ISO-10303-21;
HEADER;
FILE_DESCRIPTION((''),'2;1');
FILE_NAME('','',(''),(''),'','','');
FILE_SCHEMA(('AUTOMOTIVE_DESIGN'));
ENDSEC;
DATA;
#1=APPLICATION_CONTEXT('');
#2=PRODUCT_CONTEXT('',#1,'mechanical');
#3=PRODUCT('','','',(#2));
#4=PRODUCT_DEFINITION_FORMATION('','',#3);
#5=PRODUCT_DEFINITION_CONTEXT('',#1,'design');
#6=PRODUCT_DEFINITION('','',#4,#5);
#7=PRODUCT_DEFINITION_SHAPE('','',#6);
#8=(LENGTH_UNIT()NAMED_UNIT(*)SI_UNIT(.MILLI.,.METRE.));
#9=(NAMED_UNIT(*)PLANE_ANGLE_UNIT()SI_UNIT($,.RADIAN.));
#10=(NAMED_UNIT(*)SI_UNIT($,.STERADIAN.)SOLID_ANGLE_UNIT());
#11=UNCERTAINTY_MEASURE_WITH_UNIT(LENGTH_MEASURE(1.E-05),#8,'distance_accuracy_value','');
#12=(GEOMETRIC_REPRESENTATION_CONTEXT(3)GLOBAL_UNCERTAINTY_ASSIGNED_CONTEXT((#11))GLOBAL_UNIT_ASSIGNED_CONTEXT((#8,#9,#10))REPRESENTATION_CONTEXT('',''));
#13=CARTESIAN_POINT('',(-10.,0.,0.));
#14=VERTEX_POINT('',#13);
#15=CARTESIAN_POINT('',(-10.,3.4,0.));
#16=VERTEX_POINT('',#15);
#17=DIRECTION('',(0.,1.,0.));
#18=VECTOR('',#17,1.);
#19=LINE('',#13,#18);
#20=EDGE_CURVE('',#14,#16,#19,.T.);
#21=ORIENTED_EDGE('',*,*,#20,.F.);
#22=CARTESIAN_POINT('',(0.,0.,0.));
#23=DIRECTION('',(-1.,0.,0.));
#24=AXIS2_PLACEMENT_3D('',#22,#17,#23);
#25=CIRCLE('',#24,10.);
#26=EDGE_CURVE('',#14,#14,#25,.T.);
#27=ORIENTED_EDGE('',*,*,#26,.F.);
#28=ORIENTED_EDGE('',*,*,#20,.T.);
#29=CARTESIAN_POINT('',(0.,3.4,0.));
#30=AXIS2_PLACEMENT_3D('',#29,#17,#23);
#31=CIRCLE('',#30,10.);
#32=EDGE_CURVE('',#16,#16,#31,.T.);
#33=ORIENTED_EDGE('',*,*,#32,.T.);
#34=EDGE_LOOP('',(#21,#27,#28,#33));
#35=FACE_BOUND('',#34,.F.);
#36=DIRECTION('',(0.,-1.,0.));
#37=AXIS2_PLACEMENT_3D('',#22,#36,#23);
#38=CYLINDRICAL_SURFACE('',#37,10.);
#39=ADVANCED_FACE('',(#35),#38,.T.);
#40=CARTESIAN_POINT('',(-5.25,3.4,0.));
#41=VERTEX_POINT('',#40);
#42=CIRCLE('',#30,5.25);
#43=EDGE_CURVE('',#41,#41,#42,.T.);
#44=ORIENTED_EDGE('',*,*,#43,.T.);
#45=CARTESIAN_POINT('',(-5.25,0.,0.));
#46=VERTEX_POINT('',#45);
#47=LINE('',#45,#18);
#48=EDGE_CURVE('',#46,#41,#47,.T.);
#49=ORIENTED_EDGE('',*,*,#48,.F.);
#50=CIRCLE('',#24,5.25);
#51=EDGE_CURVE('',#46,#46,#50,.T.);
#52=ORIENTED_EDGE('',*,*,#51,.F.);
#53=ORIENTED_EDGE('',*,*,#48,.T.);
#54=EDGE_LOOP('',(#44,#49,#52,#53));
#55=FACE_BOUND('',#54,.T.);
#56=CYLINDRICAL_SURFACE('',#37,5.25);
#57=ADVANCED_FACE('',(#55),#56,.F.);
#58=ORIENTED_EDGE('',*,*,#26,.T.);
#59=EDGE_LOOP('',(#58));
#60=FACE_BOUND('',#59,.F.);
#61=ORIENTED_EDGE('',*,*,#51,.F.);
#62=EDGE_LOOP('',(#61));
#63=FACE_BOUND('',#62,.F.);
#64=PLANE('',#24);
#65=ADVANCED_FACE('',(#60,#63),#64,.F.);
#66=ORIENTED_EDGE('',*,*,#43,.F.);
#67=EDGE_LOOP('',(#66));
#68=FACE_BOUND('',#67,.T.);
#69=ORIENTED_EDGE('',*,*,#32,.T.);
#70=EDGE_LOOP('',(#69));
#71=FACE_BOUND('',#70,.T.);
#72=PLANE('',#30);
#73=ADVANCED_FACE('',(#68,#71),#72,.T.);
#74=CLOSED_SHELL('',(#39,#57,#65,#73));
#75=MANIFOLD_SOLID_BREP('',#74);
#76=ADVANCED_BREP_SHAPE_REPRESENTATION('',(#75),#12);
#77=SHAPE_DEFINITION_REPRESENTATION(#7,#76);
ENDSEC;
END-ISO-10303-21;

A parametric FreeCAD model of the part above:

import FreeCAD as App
import Part
import Sketcher

V = App.Vector
Q = App.Units.Quantity

doc = App.newDocument("Part")
body = doc.addObject("PartDesign::Body", "Body")

# Sketch on XZ plane
sketch1 = body.newObject("Sketcher::SketchObject", "Sketch")
sketch1.AttachmentSupport = (doc.getObject("XZ_Plane"), [""])
sketch1.MapMode = "FlatFace"
sketch1.addGeometry([
    Part.Circle(V(0, 0, 0), V(0, 0, 1), 10),
    Part.Circle(V(0, 0, 0), V(0, 0, 1), 5.25),
], False)
sketch1.addConstraint([
    Sketcher.Constraint("Coincident", 0, 3, -1, 1),
    Sketcher.Constraint("Coincident", 1, 3, -1, 1),
    Sketcher.Constraint("Diameter", 0, Q("20 mm")),
    Sketcher.Constraint("Diameter", 1, Q("10.5 mm")),
])
pad1 = body.newObject("PartDesign::Pad", "Pad")
pad1.Profile = sketch1
pad1.Length = 3.4
pad1.Reversed = True

doc.recompute()
